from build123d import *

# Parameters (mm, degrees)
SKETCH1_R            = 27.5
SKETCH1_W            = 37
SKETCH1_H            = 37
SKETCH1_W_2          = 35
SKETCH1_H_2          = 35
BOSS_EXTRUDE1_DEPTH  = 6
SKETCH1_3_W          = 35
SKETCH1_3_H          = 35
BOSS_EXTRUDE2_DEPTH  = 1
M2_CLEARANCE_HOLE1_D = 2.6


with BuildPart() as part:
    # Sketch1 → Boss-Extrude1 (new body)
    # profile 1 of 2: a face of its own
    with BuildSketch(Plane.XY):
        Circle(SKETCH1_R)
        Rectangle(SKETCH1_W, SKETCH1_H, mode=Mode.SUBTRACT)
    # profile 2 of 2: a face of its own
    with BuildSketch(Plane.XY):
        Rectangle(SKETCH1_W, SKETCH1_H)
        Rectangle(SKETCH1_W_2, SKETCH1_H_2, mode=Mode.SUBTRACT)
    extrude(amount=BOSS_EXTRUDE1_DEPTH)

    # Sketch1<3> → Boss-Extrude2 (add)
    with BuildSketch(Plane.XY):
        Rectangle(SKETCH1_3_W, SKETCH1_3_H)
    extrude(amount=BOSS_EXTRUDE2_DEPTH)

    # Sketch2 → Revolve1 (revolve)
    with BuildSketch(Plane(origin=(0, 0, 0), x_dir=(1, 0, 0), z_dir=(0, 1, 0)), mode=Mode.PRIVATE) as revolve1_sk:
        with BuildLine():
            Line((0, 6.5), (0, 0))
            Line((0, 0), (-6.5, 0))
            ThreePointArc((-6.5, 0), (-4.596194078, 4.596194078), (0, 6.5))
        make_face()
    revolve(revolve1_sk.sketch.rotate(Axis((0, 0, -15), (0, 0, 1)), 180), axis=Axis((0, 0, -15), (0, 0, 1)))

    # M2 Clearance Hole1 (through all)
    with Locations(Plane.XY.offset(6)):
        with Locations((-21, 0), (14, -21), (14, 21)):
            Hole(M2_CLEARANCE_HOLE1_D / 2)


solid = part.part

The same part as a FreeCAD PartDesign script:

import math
import FreeCAD as App
import Part
import Sketcher

V = App.Vector

doc = App.newDocument("Part")
body = doc.addObject("PartDesign::Body", "Body")

# Sketch on XY plane
sketch1 = body.newObject("Sketcher::SketchObject", "Sketch")
sketch1.AttachmentSupport = (doc.getObject("XY_Plane"), [""])
sketch1.MapMode = "FlatFace"
sketch1.addGeometry(Part.Circle(V(0, 0, 0), V(0, 0, 1), 28), False)
sketch1.addGeometry(Part.LineSegment(V(18, -18, 0), V(-18, -18, 0)), False)
sketch1.addGeometry(Part.LineSegment(V(-18, -18, 0), V(-18, 18, 0)), False)
sketch1.addGeometry(Part.LineSegment(V(-18, 18, 0), V(18, 18, 0)), False)
sketch1.addGeometry(Part.LineSegment(V(18, 18, 0), V(18, -18, 0)), False)
sketch1.addConstraint(Sketcher.Constraint("Coincident", 1, 2, 2, 1))
sketch1.addConstraint(Sketcher.Constraint("Coincident", 2, 2, 3, 1))
sketch1.addConstraint(Sketcher.Constraint("Coincident", 3, 2, 4, 1))
sketch1.addConstraint(Sketcher.Constraint("Coincident", 4, 2, 1, 1))
sketch1.addConstraint(Sketcher.Constraint("Horizontal", 1))
sketch1.addConstraint(Sketcher.Constraint("Vertical", 2))
sketch1.addConstraint(Sketcher.Constraint("Horizontal", 3))
sketch1.addConstraint(Sketcher.Constraint("Vertical", 4))
sketch1.addConstraint(Sketcher.Constraint("Coincident", 0, 3, -1, 1))
sketch1.addConstraint(Sketcher.Constraint("Symmetric", 1, 2, 3, 2, -1, 1))
sketch1.addConstraint(Sketcher.Constraint("Equal", 3, 2))
sketch1.addConstraint(Sketcher.Constraint("Diameter", 0, 55.0))
sketch1.addConstraint(Sketcher.Constraint("DistanceX", 1, 2, 1, 1, 35.0))
pad1 = body.newObject("PartDesign::Pad", "Pad")
pad1.Profile = sketch1
pad1.Length = 6

# Sketch on XY plane
sketch2 = body.newObject("Sketcher::SketchObject", "Sketch001")
sketch2.AttachmentSupport = (doc.getObject("XY_Plane"), [""])
sketch2.MapMode = "FlatFace"
sketch2.addGeometry(Part.LineSegment(V(-18, 18, 0), V(-18, -18, 0)), False)
sketch2.addGeometry(Part.LineSegment(V(-18, -18, 0), V(18, -18, 0)), False)
sketch2.addGeometry(Part.LineSegment(V(18, -18, 0), V(18, 18, 0)), False)
sketch2.addGeometry(Part.LineSegment(V(18, 18, 0), V(-18, 18, 0)), False)
sketch2.addConstraint(Sketcher.Constraint("Coincident", 0, 2, 1, 1))
sketch2.addConstraint(Sketcher.Constraint("Coincident", 1, 2, 2, 1))
sketch2.addConstraint(Sketcher.Constraint("Coincident", 2, 2, 3, 1))
sketch2.addConstraint(Sketcher.Constraint("Coincident", 3, 2, 0, 1))
sketch2.addConstraint(Sketcher.Constraint("Vertical", 0))
sketch2.addConstraint(Sketcher.Constraint("Horizontal", 1))
sketch2.addConstraint(Sketcher.Constraint("Vertical", 2))
sketch2.addConstraint(Sketcher.Constraint("Horizontal", 3))
sketch2.addConstraint(Sketcher.Constraint("Symmetric", 0, 2, 2, 2, -1, 1))
sketch2.addConstraint(Sketcher.Constraint("Equal", 3, 0))
sketch2.addConstraint(Sketcher.Constraint("DistanceX", 1, 1, 1, 2, 35.0))
pad2 = body.newObject("PartDesign::Pad", "Pad001")
pad2.Profile = sketch2
pad2.Length = 1

# Sketch on XZ plane
sketch3 = body.newObject("Sketcher::SketchObject", "Sketch002")
sketch3.AttachmentSupport = (doc.getObject("XZ_Plane"), [""])
sketch3.MapMode = "FlatFace"
sketch3.addGeometry(Part.LineSegment(V(0, 0, 0), V(0, -6, 0)), False)
sketch3.addGeometry(Part.ArcOfCircle(Part.Circle(V(0, 0, 0), V(0, 0, 1), 6), math.radians(180), math.radians(270)), False)
sketch3.addGeometry(Part.LineSegment(V(-6, 0, 0), V(0, 0, 0)), False)
sketch3.addConstraint(Sketcher.Constraint("Coincident", 0, 2, 1, 2))
sketch3.addConstraint(Sketcher.Constraint("Coincident", 1, 1, 2, 1))
sketch3.addConstraint(Sketcher.Constraint("Coincident", 2, 2, 0, 1))
sketch3.addConstraint(Sketcher.Constraint("Vertical", 0))
sketch3.addConstraint(Sketcher.Constraint("Horizontal", 2))
sketch3.addConstraint(Sketcher.Constraint("Coincident", 1, 3, -1, 1))
sketch3.addConstraint(Sketcher.Constraint("Coincident", 2, 2, -1, 1))
sketch3.addConstraint(Sketcher.Constraint("Radius", 1, 6.5))
revolution = body.newObject("PartDesign::Revolution", "Revolution")
revolution.Profile = sketch3
revolution.ReferenceAxis = (sketch3, ["V_Axis"])
revolution.Angle = 360

# Sketch on XY plane
sketch4 = body.newObject("Sketcher::SketchObject", "Sketch003")
sketch4.AttachmentSupport = (doc.getObject("XY_Plane"), [""])
sketch4.MapMode = "FlatFace"
sketch4.AttachmentOffset = App.Placement(V(0, 0, 6), App.Rotation())
sketch4.addGeometry(Part.Circle(V(-21, 0, 0), V(0, 0, 1), 1.3), False)
sketch4.addGeometry(Part.Circle(V(14, -21, 0), V(0, 0, 1), 1.3), False)
sketch4.addGeometry(Part.Circle(V(14, 21, 0), V(0, 0, 1), 1.3), False)
sketch4.addConstraint(Sketcher.Constraint("Equal", 0, 1))
sketch4.addConstraint(Sketcher.Constraint("Equal", 1, 2))
sketch4.addConstraint(Sketcher.Constraint("Symmetric", 1, 3, 2, 3, -1))
sketch4.addConstraint(Sketcher.Constraint("PointOnObject", 0, 3, -1))
sketch4.addConstraint(Sketcher.Constraint("Diameter", 0, 2.6))
sketch4.addConstraint(Sketcher.Constraint("DistanceX", 0, 3, -1, 1, 21.0))
sketch4.addConstraint(Sketcher.Constraint("DistanceX", -1, 1, 1, 3, 14.0))
sketch4.addConstraint(Sketcher.Constraint("DistanceY", 1, 3, -1, 1, 21.0))
doc.recompute()
hole = body.newObject("PartDesign::Hole", "Hole")
hole.Profile = sketch4
hole.ThreadType = "None"
hole.Diameter = 2.6
hole.DepthType = "ThroughAll"

doc.recompute()
